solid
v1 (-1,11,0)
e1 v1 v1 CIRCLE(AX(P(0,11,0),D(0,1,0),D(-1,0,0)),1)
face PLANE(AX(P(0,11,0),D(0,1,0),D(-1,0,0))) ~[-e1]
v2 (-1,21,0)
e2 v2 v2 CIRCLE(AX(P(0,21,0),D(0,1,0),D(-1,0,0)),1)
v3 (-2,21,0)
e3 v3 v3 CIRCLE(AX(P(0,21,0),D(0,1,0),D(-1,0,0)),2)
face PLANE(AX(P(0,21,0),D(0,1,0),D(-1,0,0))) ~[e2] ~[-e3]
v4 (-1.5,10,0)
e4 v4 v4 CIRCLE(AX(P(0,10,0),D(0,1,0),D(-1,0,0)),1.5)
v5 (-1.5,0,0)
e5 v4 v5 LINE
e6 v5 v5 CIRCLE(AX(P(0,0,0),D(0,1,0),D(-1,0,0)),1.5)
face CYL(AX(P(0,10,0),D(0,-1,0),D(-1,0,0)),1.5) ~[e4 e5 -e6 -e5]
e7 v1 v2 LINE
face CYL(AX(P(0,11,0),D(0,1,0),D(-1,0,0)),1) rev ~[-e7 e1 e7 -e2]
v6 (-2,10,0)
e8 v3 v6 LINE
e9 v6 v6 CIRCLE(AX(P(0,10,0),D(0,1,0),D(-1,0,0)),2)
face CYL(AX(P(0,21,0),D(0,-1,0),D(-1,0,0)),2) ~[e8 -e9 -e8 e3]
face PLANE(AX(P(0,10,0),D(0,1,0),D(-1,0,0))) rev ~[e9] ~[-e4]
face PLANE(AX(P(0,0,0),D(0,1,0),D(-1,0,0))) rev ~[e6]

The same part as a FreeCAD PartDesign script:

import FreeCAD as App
import Part
import Sketcher

V = App.Vector
Q = App.Units.Quantity

doc = App.newDocument("Part")
body = doc.addObject("PartDesign::Body", "Body")

sketch1 = body.newObject("Sketcher::SketchObject", "Sketch")
sketch1.AttachmentSupport = (doc.getObject("XY_Plane"), [""])
sketch1.MapMode = "FlatFace"
sketch1.addGeometry(Part.LineSegment(V(0, 0, 0), V(0, 11, 0)), False)
sketch1.addGeometry(Part.LineSegment(V(0, 11, 0), V(-1, 11, 0)), False)
sketch1.addGeometry(Part.LineSegment(V(-1, 11, 0), V(-1, 21, 0)), False)
sketch1.addGeometry(Part.LineSegment(V(-1, 21, 0), V(-2, 21, 0)), False)
sketch1.addGeometry(Part.LineSegment(V(-2, 21, 0), V(-2, 10, 0)), False)
sketch1.addGeometry(Part.LineSegment(V(-2, 10, 0), V(-1.5, 10, 0)), False)
sketch1.addGeometry(Part.LineSegment(V(-1.5, 10, 0), V(-1.5, 0, 0)), False)
sketch1.addGeometry(Part.LineSegment(V(-1.5, 0, 0), V(0, 0, 0)), False)
sketch1.addConstraint(Sketcher.Constraint("Coincident", 0, 2, 1, 1))
sketch1.addConstraint(Sketcher.Constraint("Coincident", 1, 2, 2, 1))
sketch1.addConstraint(Sketcher.Constraint("Coincident", 2, 2, 3, 1))
sketch1.addConstraint(Sketcher.Constraint("Coincident", 3, 2, 4, 1))
sketch1.addConstraint(Sketcher.Constraint("Coincident", 4, 2, 5, 1))
sketch1.addConstraint(Sketcher.Constraint("Coincident", 5, 2, 6, 1))
sketch1.addConstraint(Sketcher.Constraint("Coincident", 6, 2, 7, 1))
sketch1.addConstraint(Sketcher.Constraint("Coincident", 7, 2, 0, 1))
sketch1.addConstraint(Sketcher.Constraint("Vertical", 0))
sketch1.addConstraint(Sketcher.Constraint("Horizontal", 1))
sketch1.addConstraint(Sketcher.Constraint("Vertical", 2))
sketch1.addConstraint(Sketcher.Constraint("Horizontal", 3))
sketch1.addConstraint(Sketcher.Constraint("Vertical", 4))
sketch1.addConstraint(Sketcher.Constraint("Horizontal", 5))
sketch1.addConstraint(Sketcher.Constraint("Vertical", 6))
sketch1.addConstraint(Sketcher.Constraint("Horizontal", 7))
sketch1.addConstraint(Sketcher.Constraint("Coincident", 7, 2, -1, 1))
sketch1.addConstraint(Sketcher.Constraint("Equal", 1, 3))
sketch1.addConstraint(Sketcher.Constraint("Equal", 0, 4))
sketch1.addConstraint(Sketcher.Constraint("DistanceX", 1, 2, 1, 1, Q("1 mm")))
sketch1.addConstraint(Sketcher.Constraint("DistanceY", 0, 1, 0, 2, Q("11 mm")))
sketch1.addConstraint(Sketcher.Constraint("DistanceY", 2, 1, 2, 2, Q("10 mm")))
sketch1.addConstraint(Sketcher.Constraint("DistanceX", 7, 1, 7, 2, Q("1.5 mm")))
revolution = body.newObject("PartDesign::Revolution", "Revolution")
revolution.Profile = sketch1
revolution.ReferenceAxis = (sketch1, ["V_Axis"])
revolution.Angle = 360

doc.recompute()
